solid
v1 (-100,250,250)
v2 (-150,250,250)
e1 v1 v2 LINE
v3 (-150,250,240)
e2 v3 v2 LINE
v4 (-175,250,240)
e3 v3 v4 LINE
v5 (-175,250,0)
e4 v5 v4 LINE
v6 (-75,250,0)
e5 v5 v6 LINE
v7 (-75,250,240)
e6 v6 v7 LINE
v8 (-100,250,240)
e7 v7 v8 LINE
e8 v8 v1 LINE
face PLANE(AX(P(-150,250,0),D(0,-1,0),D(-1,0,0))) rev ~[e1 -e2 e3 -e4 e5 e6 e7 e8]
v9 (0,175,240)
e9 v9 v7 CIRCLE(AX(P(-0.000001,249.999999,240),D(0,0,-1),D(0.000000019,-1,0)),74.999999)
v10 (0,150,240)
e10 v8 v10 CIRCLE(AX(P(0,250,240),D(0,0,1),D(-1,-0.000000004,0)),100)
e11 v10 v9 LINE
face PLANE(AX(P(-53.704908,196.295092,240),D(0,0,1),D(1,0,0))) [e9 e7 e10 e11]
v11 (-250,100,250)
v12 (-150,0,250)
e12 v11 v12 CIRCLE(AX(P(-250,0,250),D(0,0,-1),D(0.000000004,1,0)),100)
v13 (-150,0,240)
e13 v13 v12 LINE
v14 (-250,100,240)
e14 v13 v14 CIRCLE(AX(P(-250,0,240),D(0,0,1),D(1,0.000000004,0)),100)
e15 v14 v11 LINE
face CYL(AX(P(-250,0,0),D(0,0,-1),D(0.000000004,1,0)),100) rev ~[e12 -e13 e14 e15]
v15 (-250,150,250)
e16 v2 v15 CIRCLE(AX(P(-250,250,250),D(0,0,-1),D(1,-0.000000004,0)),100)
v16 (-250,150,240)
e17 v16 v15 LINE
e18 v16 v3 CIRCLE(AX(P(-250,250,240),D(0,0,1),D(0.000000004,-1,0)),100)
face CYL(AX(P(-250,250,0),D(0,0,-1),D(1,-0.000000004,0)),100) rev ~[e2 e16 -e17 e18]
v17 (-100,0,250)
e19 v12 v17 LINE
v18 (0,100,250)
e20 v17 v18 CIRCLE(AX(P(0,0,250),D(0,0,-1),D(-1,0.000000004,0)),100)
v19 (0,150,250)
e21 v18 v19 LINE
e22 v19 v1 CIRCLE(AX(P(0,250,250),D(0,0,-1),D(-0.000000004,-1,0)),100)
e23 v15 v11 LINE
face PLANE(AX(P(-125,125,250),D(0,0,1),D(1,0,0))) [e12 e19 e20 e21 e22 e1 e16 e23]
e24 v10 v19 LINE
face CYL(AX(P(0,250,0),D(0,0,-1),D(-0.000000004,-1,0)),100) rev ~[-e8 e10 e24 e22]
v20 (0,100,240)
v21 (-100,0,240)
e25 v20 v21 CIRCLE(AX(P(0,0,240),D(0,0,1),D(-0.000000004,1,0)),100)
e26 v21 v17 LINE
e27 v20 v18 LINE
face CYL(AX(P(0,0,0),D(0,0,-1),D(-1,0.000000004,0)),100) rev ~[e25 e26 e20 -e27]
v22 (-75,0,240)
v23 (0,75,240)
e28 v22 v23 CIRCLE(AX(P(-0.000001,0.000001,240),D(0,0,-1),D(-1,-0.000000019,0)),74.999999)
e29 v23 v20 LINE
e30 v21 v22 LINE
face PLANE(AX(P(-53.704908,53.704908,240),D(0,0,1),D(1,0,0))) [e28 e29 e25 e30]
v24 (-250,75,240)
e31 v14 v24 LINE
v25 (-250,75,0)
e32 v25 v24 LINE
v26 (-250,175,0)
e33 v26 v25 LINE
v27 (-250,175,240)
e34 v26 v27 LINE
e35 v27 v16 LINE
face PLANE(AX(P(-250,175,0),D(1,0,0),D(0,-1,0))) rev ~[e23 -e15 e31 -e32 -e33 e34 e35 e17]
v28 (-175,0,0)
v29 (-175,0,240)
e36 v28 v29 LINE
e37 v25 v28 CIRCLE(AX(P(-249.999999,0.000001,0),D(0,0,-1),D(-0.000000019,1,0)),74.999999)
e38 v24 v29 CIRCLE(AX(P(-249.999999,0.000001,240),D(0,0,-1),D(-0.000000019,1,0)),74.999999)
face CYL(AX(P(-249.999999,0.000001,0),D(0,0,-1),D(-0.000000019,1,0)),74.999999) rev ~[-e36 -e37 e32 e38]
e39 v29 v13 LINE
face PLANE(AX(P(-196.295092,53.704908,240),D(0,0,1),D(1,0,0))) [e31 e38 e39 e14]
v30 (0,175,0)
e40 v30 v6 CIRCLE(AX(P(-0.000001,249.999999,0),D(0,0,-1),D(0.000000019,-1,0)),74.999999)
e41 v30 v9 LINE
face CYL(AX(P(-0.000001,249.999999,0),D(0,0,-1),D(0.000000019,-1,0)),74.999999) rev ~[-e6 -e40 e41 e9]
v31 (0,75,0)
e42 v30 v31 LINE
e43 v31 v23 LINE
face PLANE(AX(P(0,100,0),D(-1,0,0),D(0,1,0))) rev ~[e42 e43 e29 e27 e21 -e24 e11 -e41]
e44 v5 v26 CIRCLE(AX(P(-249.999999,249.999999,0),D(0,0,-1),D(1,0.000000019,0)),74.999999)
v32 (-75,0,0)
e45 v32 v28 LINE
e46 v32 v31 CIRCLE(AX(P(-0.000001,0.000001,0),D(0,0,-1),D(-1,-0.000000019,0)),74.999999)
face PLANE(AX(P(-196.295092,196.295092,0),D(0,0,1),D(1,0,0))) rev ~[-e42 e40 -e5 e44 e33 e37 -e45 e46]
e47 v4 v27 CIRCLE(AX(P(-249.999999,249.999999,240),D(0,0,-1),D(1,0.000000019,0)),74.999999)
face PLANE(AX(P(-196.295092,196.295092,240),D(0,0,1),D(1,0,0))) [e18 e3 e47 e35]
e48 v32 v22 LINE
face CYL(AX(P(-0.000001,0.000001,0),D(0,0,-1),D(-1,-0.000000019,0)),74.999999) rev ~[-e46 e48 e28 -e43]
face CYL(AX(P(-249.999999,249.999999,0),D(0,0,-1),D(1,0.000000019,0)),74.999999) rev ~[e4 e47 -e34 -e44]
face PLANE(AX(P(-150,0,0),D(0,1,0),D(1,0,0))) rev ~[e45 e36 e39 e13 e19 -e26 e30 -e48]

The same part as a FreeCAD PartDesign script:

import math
import FreeCAD as App
import Part
import Sketcher

doc = App.newDocument("Part")
body = doc.addObject("PartDesign::Body", "Body")

# Sketch on XY plane
sketch1 = body.newObject("Sketcher::SketchObject", "Sketch")
sketch1.AttachmentSupport = (doc.getObject("XY_Plane"), [""])
sketch1.MapMode = "FlatFace"
sketch1.addGeometry([
    Part.LineSegment(App.Vector(-250, 150, 0), App.Vector(-250, 100, 0)),  # 0
    Part.ArcOfCircle(Part.Circle(App.Vector(-250, 0, 0), App.Vector(0, 0, 1), 100), math.radians(0), math.radians(90)),  # 1
    Part.LineSegment(App.Vector(-150, 0, 0), App.Vector(-100, 0, 0)),  # 2
    Part.ArcOfCircle(Part.Circle(App.Vector(0, 0, 0), App.Vector(0, 0, 1), 100), math.radians(90), math.radians(180)),  # 3
    Part.LineSegment(App.Vector(0, 100, 0), App.Vector(0, 150, 0)),  # 4
    Part.ArcOfCircle(Part.Circle(App.Vector(0, 250, 0), App.Vector(0, 0, 1), 100), math.radians(-180), math.radians(-90)),  # 5
    Part.LineSegment(App.Vector(-100, 250, 0), App.Vector(-150, 250, 0)),  # 6
    Part.ArcOfCircle(Part.Circle(App.Vector(-250, 250, 0), App.Vector(0, 0, 1), 100), math.radians(-90), math.radians(0)),  # 7
], False)
sketch1.addConstraint([
    Sketcher.Constraint("Coincident", 0, 2, 1, 2),
    Sketcher.Constraint("Coincident", 1, 1, 2, 1),
    Sketcher.Constraint("Coincident", 2, 2, 3, 2),
    Sketcher.Constraint("Coincident", 3, 1, 4, 1),
    Sketcher.Constraint("Coincident", 4, 2, 5, 2),
    Sketcher.Constraint("Coincident", 5, 1, 6, 1),
    Sketcher.Constraint("Coincident", 6, 2, 7, 2),
    Sketcher.Constraint("Coincident", 7, 1, 0, 1),
    Sketcher.Constraint("Vertical", 0),
    Sketcher.Constraint("Horizontal", 2),
    Sketcher.Constraint("Vertical", 4),
    Sketcher.Constraint("Horizontal", 6),
    Sketcher.Constraint("Coincident", 3, 3, -1, 1),
    Sketcher.Constraint("Equal", 1, 3),
    Sketcher.Constraint("Equal", 3, 5),
    Sketcher.Constraint("Equal", 5, 7),
    Sketcher.Constraint("PointOnObject", 1, 3, -1),
    Sketcher.Constraint("PointOnObject", 5, 3, -2),
    Sketcher.Constraint("PointOnObject", 1, 1, -1),
    Sketcher.Constraint("PointOnObject", 3, 1, -2),
    Sketcher.Constraint("Horizontal", 5, 3, 7, 3),
    Sketcher.Constraint("Horizontal", 7, 3, 5, 1),
    Sketcher.Constraint("Vertical", 1, 3, 7, 3),
    Sketcher.Constraint("Vertical", 7, 3, 0, 2),
    Sketcher.Constraint("Equal", 6, 0),
    Sketcher.Constraint("Radius", 1, 100.0),
    Sketcher.Constraint("DistanceX", 2, 1, 2, 2, 50.0),
])
pad1 = body.newObject("PartDesign::Pad", "Pad")
pad1.Profile = sketch1
pad1.Length = 250

# Sketch on XY plane
sketch2 = body.newObject("Sketcher::SketchObject", "Sketch001")
sketch2.AttachmentSupport = (doc.getObject("XY_Plane"), [""])
sketch2.MapMode = "FlatFace"
sketch2.addGeometry([
    Part.LineSegment(App.Vector(-250, 175, 0), App.Vector(-250, 150, 0)),  # 0
    Part.ArcOfCircle(Part.Circle(App.Vector(-250, 250, 0), App.Vector(0, 0, 1), 100), math.radians(-90), math.radians(0)),  # 1
    Part.LineSegment(App.Vector(-150, 250, 0), App.Vector(-175, 250, 0)),  # 2
    Part.ArcOfCircle(Part.Circle(App.Vector(-249.999999, 249.999999, 0), App.Vector(0, 0, 1), 74.999999), math.radians(-90.000001), math.radians(0.000001)),  # 3
    Part.LineSegment(App.Vector(-250, 100, 0), App.Vector(-250, 75, 0)),  # 4
    Part.ArcOfCircle(Part.Circle(App.Vector(-249.999999, 0.000001, 0), App.Vector(0, 0, 1), 74.999999), math.radians(-0.000001), math.radians(90.000001)),  # 5
    Part.LineSegment(App.Vector(-175, 0, 0), App.Vector(-150, 0, 0)),  # 6
    Part.ArcOfCircle(Part.Circle(App.Vector(-250, 0, 0), App.Vector(0, 0, 1), 100), math.radians(0), math.radians(90)),  # 7
    Part.ArcOfCircle(Part.Circle(App.Vector(0, 0, 0), App.Vector(0, 0, 1), 100), math.radians(90), math.radians(180)),  # 8
    Part.LineSegment(App.Vector(-100, 0, 0), App.Vector(-75, 0, 0)),  # 9
    Part.ArcOfCircle(Part.Circle(App.Vector(-0.000001, 0.000001, 0), App.Vector(0, 0, 1), 74.999999), math.radians(89.999999), math.radians(180.000001)),  # 10
    Part.LineSegment(App.Vector(0, 75, 0), App.Vector(0, 100, 0)),  # 11
    Part.LineSegment(App.Vector(-75, 250, 0), App.Vector(-100, 250, 0)),  # 12
    Part.ArcOfCircle(Part.Circle(App.Vector(0, 250, 0), App.Vector(0, 0, 1), 100), math.radians(-180), math.radians(-90)),  # 13
    Part.LineSegment(App.Vector(0, 150, 0), App.Vector(0, 175, 0)),  # 14
    Part.ArcOfCircle(Part.Circle(App.Vector(-0.000001, 249.999999, 0), App.Vector(0, 0, 1), 74.999999), math.radians(179.999999), math.radians(270.000001)),  # 15
], False)
sketch2.addConstraint([
    Sketcher.Constraint("Coincident", 0, 2, 1, 1),
    Sketcher.Constraint("Coincident", 1, 2, 2, 1),
    Sketcher.Constraint("Coincident", 2, 2, 3, 2),
    Sketcher.Constraint("Coincident", 3, 1, 0, 1),
    Sketcher.Constraint("Coincident", 4, 2, 5, 2),
    Sketcher.Constraint("Coincident", 5, 1, 6, 1),
    Sketcher.Constraint("Coincident", 6, 2, 7, 1),
    Sketcher.Constraint("Coincident", 7, 2, 4, 1),
    Sketcher.Constraint("Coincident", 8, 2, 9, 1),
    Sketcher.Constraint("Coincident", 9, 2, 10, 2),
    Sketcher.Constraint("Coincident", 10, 1, 11, 1),
    Sketcher.Constraint("Coincident", 11, 2, 8, 1),
    Sketcher.Constraint("Coincident", 12, 2, 13, 1),
    Sketcher.Constraint("Coincident", 13, 2, 14, 1),
    Sketcher.Constraint("Coincident", 14, 2, 15, 2),
    Sketcher.Constraint("Coincident", 15, 1, 12, 1),
    Sketcher.Constraint("Vertical", 0),
    Sketcher.Constraint("Horizontal", 2),
    Sketcher.Constraint("Vertical", 4),
    Sketcher.Constraint("Horizontal", 6),
    Sketcher.Constraint("Horizontal", 9),
    Sketcher.Constraint("Vertical", 11),
    Sketcher.Constraint("Horizontal", 12),
    Sketcher.Constraint("Vertical", 14),
    Sketcher.Constraint("Coincident", 8, 3, -1, 1),
    Sketcher.Constraint("Coincident", 10, 3, -1, 1),
    Sketcher.Constraint("Coincident", 3, 3, 1, 3),
    Sketcher.Constraint("Coincident", 7, 3, 5, 3),
    Sketcher.Constraint("Coincident", 15, 3, 13, 3),
    Sketcher.Constraint("Equal", 3, 5),
    Sketcher.Constraint("Equal", 1, 7),
    Sketcher.Constraint("Equal", 7, 8),
    Sketcher.Constraint("Equal", 5, 10),
    Sketcher.Constraint("Equal", 8, 13),
    Sketcher.Constraint("Equal", 10, 15),
    Sketcher.Constraint("PointOnObject", 5, 3, -1),
    Sketcher.Constraint("PointOnObject", 13, 3, -2),
    Sketcher.Constraint("PointOnObject", 5, 1, -1),
    Sketcher.Constraint("PointOnObject", 8, 2, -1),
    Sketcher.Constraint("PointOnObject", 10, 1, -2),
    Sketcher.Constraint("PointOnObject", 13, 2, -2),
    Sketcher.Constraint("Horizontal", 3, 3, 13, 3),
    Sketcher.Constraint("Horizontal", 15, 3, 1, 2),
    Sketcher.Constraint("Horizontal", 2, 2, 12, 2),
    Sketcher.Constraint("Vertical", 3, 3, 5, 3),
    Sketcher.Constraint("Vertical", 7, 3, 0, 2),
    Sketcher.Constraint("Vertical", 3, 1, 4, 2),
    Sketcher.Constraint("Radius", 1, 100.0),
    Sketcher.Constraint("Radius", 3, 74.999999),
    Sketcher.Constraint("DistanceX", 1, 3, -1, 1, 250.0),
    Sketcher.Constraint("DistanceY", -1, 1, 1, 3, 250.0),
])
pad2 = body.newObject("PartDesign::Pad", "Pad001")
pad2.Profile = sketch2
pad2.Length = 240

doc.recompute()
